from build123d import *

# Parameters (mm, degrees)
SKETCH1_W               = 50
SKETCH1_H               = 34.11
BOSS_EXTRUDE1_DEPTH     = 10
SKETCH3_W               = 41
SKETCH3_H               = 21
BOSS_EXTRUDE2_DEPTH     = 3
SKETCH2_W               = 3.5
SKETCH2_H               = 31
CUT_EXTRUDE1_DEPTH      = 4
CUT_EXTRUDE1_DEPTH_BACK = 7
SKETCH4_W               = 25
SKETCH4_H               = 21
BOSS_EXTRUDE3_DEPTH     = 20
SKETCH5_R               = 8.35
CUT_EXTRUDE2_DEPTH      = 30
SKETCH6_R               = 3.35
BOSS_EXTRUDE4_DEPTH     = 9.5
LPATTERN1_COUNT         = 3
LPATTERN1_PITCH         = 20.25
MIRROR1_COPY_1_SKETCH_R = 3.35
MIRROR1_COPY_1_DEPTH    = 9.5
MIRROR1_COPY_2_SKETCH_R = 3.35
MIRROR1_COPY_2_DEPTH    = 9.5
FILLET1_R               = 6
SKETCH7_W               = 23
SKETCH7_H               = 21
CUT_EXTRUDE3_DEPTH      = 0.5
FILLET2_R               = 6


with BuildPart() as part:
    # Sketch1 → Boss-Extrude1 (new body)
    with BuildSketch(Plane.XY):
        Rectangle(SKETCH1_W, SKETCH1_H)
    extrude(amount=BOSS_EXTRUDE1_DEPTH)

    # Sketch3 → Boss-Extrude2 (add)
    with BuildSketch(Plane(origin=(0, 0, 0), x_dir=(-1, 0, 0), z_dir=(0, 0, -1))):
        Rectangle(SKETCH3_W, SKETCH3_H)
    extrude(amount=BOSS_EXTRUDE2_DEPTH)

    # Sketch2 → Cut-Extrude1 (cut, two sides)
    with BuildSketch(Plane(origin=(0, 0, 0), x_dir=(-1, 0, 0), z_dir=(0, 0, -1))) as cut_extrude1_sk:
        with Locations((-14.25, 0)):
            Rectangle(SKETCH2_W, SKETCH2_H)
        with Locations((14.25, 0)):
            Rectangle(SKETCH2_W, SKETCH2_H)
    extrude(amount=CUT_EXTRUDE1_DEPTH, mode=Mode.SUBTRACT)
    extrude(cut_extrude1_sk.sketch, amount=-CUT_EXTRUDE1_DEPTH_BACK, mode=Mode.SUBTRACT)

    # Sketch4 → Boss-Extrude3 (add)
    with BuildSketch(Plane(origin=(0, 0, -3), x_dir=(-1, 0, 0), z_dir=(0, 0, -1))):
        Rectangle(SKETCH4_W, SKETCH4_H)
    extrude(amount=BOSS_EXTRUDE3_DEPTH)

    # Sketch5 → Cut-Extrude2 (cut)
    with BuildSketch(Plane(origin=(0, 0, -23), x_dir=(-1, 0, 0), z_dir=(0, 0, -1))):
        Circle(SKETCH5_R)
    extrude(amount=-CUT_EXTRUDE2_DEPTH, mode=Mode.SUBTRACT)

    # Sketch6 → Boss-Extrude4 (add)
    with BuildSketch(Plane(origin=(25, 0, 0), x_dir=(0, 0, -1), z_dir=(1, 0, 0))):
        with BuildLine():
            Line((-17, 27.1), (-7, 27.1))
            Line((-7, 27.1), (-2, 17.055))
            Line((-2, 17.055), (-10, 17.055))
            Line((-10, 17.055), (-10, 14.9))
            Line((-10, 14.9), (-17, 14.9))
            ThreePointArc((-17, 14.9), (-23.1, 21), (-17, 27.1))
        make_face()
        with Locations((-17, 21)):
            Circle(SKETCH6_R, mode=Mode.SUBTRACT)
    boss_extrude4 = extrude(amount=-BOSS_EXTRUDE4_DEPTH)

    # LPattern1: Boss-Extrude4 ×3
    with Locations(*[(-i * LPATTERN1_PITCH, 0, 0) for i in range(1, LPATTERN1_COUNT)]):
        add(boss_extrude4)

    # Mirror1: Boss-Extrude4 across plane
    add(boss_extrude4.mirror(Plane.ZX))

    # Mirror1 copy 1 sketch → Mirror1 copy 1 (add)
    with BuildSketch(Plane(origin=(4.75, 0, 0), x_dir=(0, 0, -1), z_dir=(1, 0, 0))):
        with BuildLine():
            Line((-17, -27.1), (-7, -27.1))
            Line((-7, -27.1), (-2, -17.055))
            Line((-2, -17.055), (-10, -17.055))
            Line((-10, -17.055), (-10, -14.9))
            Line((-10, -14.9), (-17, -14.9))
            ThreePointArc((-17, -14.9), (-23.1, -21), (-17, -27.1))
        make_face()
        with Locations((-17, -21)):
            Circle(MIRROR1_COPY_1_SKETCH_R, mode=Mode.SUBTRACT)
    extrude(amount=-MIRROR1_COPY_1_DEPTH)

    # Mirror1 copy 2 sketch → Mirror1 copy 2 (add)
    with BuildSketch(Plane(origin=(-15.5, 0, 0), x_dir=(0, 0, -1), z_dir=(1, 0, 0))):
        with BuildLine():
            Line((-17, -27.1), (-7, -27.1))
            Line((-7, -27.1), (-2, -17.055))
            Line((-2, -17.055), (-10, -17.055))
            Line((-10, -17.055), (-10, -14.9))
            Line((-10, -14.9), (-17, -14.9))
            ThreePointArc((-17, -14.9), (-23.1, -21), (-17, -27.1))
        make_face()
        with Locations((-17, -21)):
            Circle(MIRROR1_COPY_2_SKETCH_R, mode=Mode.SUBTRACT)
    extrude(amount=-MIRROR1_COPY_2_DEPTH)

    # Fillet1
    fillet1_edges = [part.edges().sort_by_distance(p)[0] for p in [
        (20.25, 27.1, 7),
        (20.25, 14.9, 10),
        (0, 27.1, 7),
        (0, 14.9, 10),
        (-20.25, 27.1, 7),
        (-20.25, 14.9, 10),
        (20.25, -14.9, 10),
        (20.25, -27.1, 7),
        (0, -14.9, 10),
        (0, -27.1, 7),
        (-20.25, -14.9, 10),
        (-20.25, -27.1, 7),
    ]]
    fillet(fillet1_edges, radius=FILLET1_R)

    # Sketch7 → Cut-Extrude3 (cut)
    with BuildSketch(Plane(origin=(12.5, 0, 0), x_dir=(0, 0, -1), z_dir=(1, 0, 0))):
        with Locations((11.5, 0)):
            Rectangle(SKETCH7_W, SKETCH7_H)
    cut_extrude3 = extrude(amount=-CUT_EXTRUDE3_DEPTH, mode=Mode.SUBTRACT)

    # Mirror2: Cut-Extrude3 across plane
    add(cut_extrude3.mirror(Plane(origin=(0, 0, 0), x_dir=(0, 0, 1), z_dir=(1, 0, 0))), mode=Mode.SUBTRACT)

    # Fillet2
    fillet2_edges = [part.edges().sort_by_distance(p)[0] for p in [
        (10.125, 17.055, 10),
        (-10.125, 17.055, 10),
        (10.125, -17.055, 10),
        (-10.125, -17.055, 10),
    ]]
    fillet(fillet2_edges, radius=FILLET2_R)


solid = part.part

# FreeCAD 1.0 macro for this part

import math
import FreeCAD as App
import Part
import Sketcher


def edges_at(feature, points):
    """Names of the edges that pass closest to the given points."""
    edges = feature.Shape.Edges
    near = lambda p: min(range(len(edges)), key=lambda i: edges[i].distToShape(Part.Vertex(*p))[0])
    return sorted({f"Edge{near(p) + 1}" for p in points})

doc = App.newDocument("Part")
body = doc.addObject("PartDesign::Body", "Body")

# Sketch on XY plane
sketch1 = doc.addObject("Sketcher::SketchObject", "Sketch")
body.addObject(sketch1)
sketch1.AttachmentSupport = (doc.XY_Plane, [""])
sketch1.MapMode = "FlatFace"
sketch1.addGeometry([
    Part.LineSegment(App.Vector(-25, 17.055, 0), App.Vector(-25, -17.055, 0)),
    Part.LineSegment(App.Vector(-25, -17.055, 0), App.Vector(25, -17.055, 0)),
    Part.LineSegment(App.Vector(25, -17.055, 0), App.Vector(25, 17.055, 0)),
    Part.LineSegment(App.Vector(25, 17.055, 0), App.Vector(-25, 17.055, 0)),
], False)
sketch1.addConstraint([
    Sketcher.Constraint("Coincident", 0, 2, 1, 1),
    Sketcher.Constraint("Coincident", 1, 2, 2, 1),
    Sketcher.Constraint("Coincident", 2, 2, 3, 1),
    Sketcher.Constraint("Coincident", 3, 2, 0, 1),
    Sketcher.Constraint("Vertical", 0),
    Sketcher.Constraint("Horizontal", 1),
    Sketcher.Constraint("Vertical", 2),
    Sketcher.Constraint("Horizontal", 3),
    Sketcher.Constraint("Symmetric", 0, 2, 2, 2, -1, 1),
    Sketcher.Constraint("DistanceX", 1, 1, 1, 2, 50.0),
    Sketcher.Constraint("DistanceY", 0, 2, 0, 1, 34.11),
])
pad1 = doc.addObject("PartDesign::Pad", "Pad")
body.addObject(pad1)
pad1.Profile = sketch1
pad1.Length = 10

# Sketch on XY plane
sketch2 = doc.addObject("Sketcher::SketchObject", "Sketch001")
body.addObject(sketch2)
sketch2.AttachmentSupport = (doc.XY_Plane, [""])
sketch2.MapMode = "FlatFace"
sketch2.addGeometry([
    Part.LineSegment(App.Vector(20.5, 10.5, 0), App.Vector(20.5, -10.5, 0)),
    Part.LineSegment(App.Vector(20.5, -10.5, 0), App.Vector(-20.5, -10.5, 0)),
    Part.LineSegment(App.Vector(-20.5, -10.5, 0), App.Vector(-20.5, 10.5, 0)),
    Part.LineSegment(App.Vector(-20.5, 10.5, 0), App.Vector(20.5, 10.5, 0)),
], False)
sketch2.addConstraint([
    Sketcher.Constraint("Coincident", 0, 2, 1, 1),
    Sketcher.Constraint("Coincident", 1, 2, 2, 1),
    Sketcher.Constraint("Coincident", 2, 2, 3, 1),
    Sketcher.Constraint("Coincident", 3, 2, 0, 1),
    Sketcher.Constraint("Vertical", 0),
    Sketcher.Constraint("Horizontal", 1),
    Sketcher.Constraint("Vertical", 2),
    Sketcher.Constraint("Horizontal", 3),
    Sketcher.Constraint("Symmetric", 0, 2, 2, 2, -1, 1),
    Sketcher.Constraint("DistanceX", 1, 2, 1, 1, 41.0),
    Sketcher.Constraint("DistanceY", 0, 2, 0, 1, 21.0),
])
pad2 = doc.addObject("PartDesign::Pad", "Pad001")
body.addObject(pad2)
pad2.Profile = sketch2
pad2.Length = 3
pad2.Reversed = True

# Sketch on XY plane
sketch3 = doc.addObject("Sketcher::SketchObject", "Sketch002")
body.addObject(sketch3)
sketch3.AttachmentSupport = (doc.XY_Plane, [""])
sketch3.MapMode = "FlatFace"
sketch3.addGeometry([
    Part.LineSegment(App.Vector(16, 15.5, 0), App.Vector(16, -15.5, 0)),  # 0
    Part.LineSegment(App.Vector(16, -15.5, 0), App.Vector(12.5, -15.5, 0)),  # 1
    Part.LineSegment(App.Vector(12.5, -15.5, 0), App.Vector(12.5, 15.5, 0)),  # 2
    Part.LineSegment(App.Vector(12.5, 15.5, 0), App.Vector(16, 15.5, 0)),  # 3
    Part.LineSegment(App.Vector(-12.5, 15.5, 0), App.Vector(-12.5, -15.5, 0)),  # 4
    Part.LineSegment(App.Vector(-12.5, -15.5, 0), App.Vector(-16, -15.5, 0)),  # 5
    Part.LineSegment(App.Vector(-16, -15.5, 0), App.Vector(-16, 15.5, 0)),  # 6
    Part.LineSegment(App.Vector(-16, 15.5, 0), App.Vector(-12.5, 15.5, 0)),  # 7
], False)
sketch3.addConstraint([
    Sketcher.Constraint("Coincident", 0, 2, 1, 1),
    Sketcher.Constraint("Coincident", 1, 2, 2, 1),
    Sketcher.Constraint("Coincident", 2, 2, 3, 1),
    Sketcher.Constraint("Coincident", 3, 2, 0, 1),
    Sketcher.Constraint("Coincident", 4, 2, 5, 1),
    Sketcher.Constraint("Coincident", 5, 2, 6, 1),
    Sketcher.Constraint("Coincident", 6, 2, 7, 1),
    Sketcher.Constraint("Coincident", 7, 2, 4, 1),
    Sketcher.Constraint("Vertical", 0),
    Sketcher.Constraint("Horizontal", 1),
    Sketcher.Constraint("Vertical", 2),
    Sketcher.Constraint("Horizontal", 3),
    Sketcher.Constraint("Vertical", 4),
    Sketcher.Constraint("Horizontal", 5),
    Sketcher.Constraint("Vertical", 6),
    Sketcher.Constraint("Horizontal", 7),
    Sketcher.Constraint("Symmetric", 2, 2, 4, 2, -1, 1),
    Sketcher.Constraint("Symmetric", 0, 2, 6, 2, -1, 1),
    Sketcher.Constraint("Horizontal", 1, 2, 4, 2),
    Sketcher.Constraint("DistanceY", 0, 2, 0, 1, 31.0),
    Sketcher.Constraint("DistanceX", 1, 2, 1, 1, 3.5),
    Sketcher.Constraint("DistanceX", -1, 1, 0, 2, 16.0),
])
pocket1 = doc.addObject("PartDesign::Pocket", "Pocket")
body.addObject(pocket1)
pocket1.Profile = sketch3
pocket1.Type = "TwoLengths"
pocket1.Length = 4
pocket1.Length2 = 7

# Sketch on XY plane
sketch4 = doc.addObject("Sketcher::SketchObject", "Sketch003")
body.addObject(sketch4)
sketch4.AttachmentSupport = (doc.XY_Plane, [""])
sketch4.MapMode = "FlatFace"
sketch4.AttachmentOffset = App.Placement(App.Vector(0, 0, -3), App.Rotation())
sketch4.addGeometry([
    Part.LineSegment(App.Vector(12.5, 10.5, 0), App.Vector(12.5, -10.5, 0)),
    Part.LineSegment(App.Vector(12.5, -10.5, 0), App.Vector(-12.5, -10.5, 0)),
    Part.LineSegment(App.Vector(-12.5, -10.5, 0), App.Vector(-12.5, 10.5, 0)),
    Part.LineSegment(App.Vector(-12.5, 10.5, 0), App.Vector(12.5, 10.5, 0)),
], False)
sketch4.addConstraint([
    Sketcher.Constraint("Coincident", 0, 2, 1, 1),
    Sketcher.Constraint("Coincident", 1, 2, 2, 1),
    Sketcher.Constraint("Coincident", 2, 2, 3, 1),
    Sketcher.Constraint("Coincident", 3, 2, 0, 1),
    Sketcher.Constraint("Vertical", 0),
    Sketcher.Constraint("Horizontal", 1),
    Sketcher.Constraint("Vertical", 2),
    Sketcher.Constraint("Horizontal", 3),
    Sketcher.Constraint("Symmetric", 0, 2, 2, 2, -1, 1),
    Sketcher.Constraint("DistanceX", 1, 2, 1, 1, 25.0),
    Sketcher.Constraint("DistanceY", 0, 2, 0, 1, 21.0),
])
pad3 = doc.addObject("PartDesign::Pad", "Pad002")
body.addObject(pad3)
pad3.Profile = sketch4
pad3.Length = 20
pad3.Reversed = True

# Sketch on XY plane
sketch5 = doc.addObject("Sketcher::SketchObject", "Sketch004")
body.addObject(sketch5)
sketch5.AttachmentSupport = (doc.XY_Plane, [""])
sketch5.MapMode = "FlatFace"
sketch5.AttachmentOffset = App.Placement(App.Vector(0, 0, -23), App.Rotation())
sketch5.addGeometry(Part.Circle(App.Vector(0, 0, 0), App.Vector(0, 0, 1), 8.35), False)
sketch5.addConstraint([
    Sketcher.Constraint("Coincident", 0, 3, -1, 1),
    Sketcher.Constraint("Diameter", 0, 16.7),
])
pocket2 = doc.addObject("PartDesign::Pocket", "Pocket001")
body.addObject(pocket2)
pocket2.Profile = sketch5
pocket2.Length = 30
pocket2.Reversed = True

# Sketch on YZ plane
sketch6 = doc.addObject("Sketcher::SketchObject", "Sketch005")
body.addObject(sketch6)
sketch6.AttachmentSupport = (doc.YZ_Plane, [""])
sketch6.MapMode = "FlatFace"
sketch6.AttachmentOffset = App.Placement(App.Vector(0, 0, 25), App.Rotation())
sketch6.addGeometry([
    Part.LineSegment(App.Vector(27.1, 7, 0), App.Vector(27.1, 17, 0)),  # 0
    Part.ArcOfCircle(Part.Circle(App.Vector(21, 17, 0), App.Vector(0, 0, 1), 6.1), math.radians(0), math.radians(180)),  # 1
    Part.LineSegment(App.Vector(14.9, 17, 0), App.Vector(14.9, 10, 0)),  # 2
    Part.LineSegment(App.Vector(14.9, 10, 0), App.Vector(17.055, 10, 0)),  # 3
    Part.LineSegment(App.Vector(17.055, 10, 0), App.Vector(17.055, 2, 0)),  # 4
    Part.LineSegment(App.Vector(17.055, 2, 0), App.Vector(27.1, 7, 0)),  # 5
    Part.Circle(App.Vector(21, 17, 0), App.Vector(0, 0, 1), 3.35),  # 6
], False)
sketch6.addConstraint([
    Sketcher.Constraint("Tangent", 0, 2, 1, 1),
    Sketcher.Constraint("Tangent", 1, 2, 2, 1),
    Sketcher.Constraint("Coincident", 2, 2, 3, 1),
    Sketcher.Constraint("Coincident", 3, 2, 4, 1),
    Sketcher.Constraint("Coincident", 4, 2, 5, 1),
    Sketcher.Constraint("Coincident", 5, 2, 0, 1),
    Sketcher.Constraint("Vertical", 0),
    Sketcher.Constraint("Vertical", 2),
    Sketcher.Constraint("Horizontal", 3),
    Sketcher.Constraint("Vertical", 4),
    Sketcher.Constraint("Coincident", 6, 3, 1, 3),
    Sketcher.Constraint("Diameter", 6, 6.7),
    Sketcher.Constraint("Radius", 1, 6.1),
    Sketcher.Constraint("DistanceY", 0, 1, 0, 2, 10.0),
    Sketcher.Constraint("DistanceY", 2, 2, 2, 1, 7.0),
    Sketcher.Constraint("DistanceY", 4, 2, 4, 1, 8.0),
    Sketcher.Constraint("DistanceX", -1, 1, 1, 3, 21.0),
    Sketcher.Constraint("DistanceY", -1, 1, 1, 3, 17.0),
    Sketcher.Constraint("DistanceX", 3, 1, 3, 2, 2.155),
])
pad4 = doc.addObject("PartDesign::Pad", "Pad003")
body.addObject(pad4)
pad4.Profile = sketch6
pad4.Length = 9.5
pad4.Reversed = True
doc.recompute()

linearpattern = doc.addObject("PartDesign::LinearPattern", "LinearPattern")
body.addObject(linearpattern)
linearpattern.Originals = [pad4]
linearpattern.Direction = (doc.X_Axis, [""])
linearpattern.Mode = "offset"
linearpattern.Offset = 20.25
linearpattern.Occurrences = 3
linearpattern.Reversed = True
body.Tip = linearpattern
doc.recompute()

mirrored = doc.addObject("PartDesign::Mirrored", "Mirrored")
body.addObject(mirrored)
mirrored.Originals = [pad4]
mirrored.MirrorPlane = (doc.XZ_Plane, [""])
body.Tip = mirrored

# Sketch on YZ plane
sketch7 = doc.addObject("Sketcher::SketchObject", "Sketch006")
body.addObject(sketch7)
sketch7.AttachmentSupport = (doc.YZ_Plane, [""])
sketch7.MapMode = "FlatFace"
sketch7.AttachmentOffset = App.Placement(App.Vector(0, 0, 4.75), App.Rotation())
sketch7.addGeometry([
    Part.LineSegment(App.Vector(-27.1, 17, 0), App.Vector(-27.1, 7, 0)),  # 0
    Part.LineSegment(App.Vector(-27.1, 7, 0), App.Vector(-17.055, 2, 0)),  # 1
    Part.LineSegment(App.Vector(-17.055, 2, 0), App.Vector(-17.055, 10, 0)),  # 2
    Part.LineSegment(App.Vector(-17.055, 10, 0), App.Vector(-14.9, 10, 0)),  # 3
    Part.LineSegment(App.Vector(-14.9, 10, 0), App.Vector(-14.9, 17, 0)),  # 4
    Part.ArcOfCircle(Part.Circle(App.Vector(-21, 17, 0), App.Vector(0, 0, 1), 6.1), math.radians(0), math.radians(180)),  # 5
    Part.Circle(App.Vector(-21, 17, 0), App.Vector(0, 0, 1), 3.35),  # 6
], False)
sketch7.addConstraint([
    Sketcher.Constraint("Coincident", 0, 2, 1, 1),
    Sketcher.Constraint("Coincident", 1, 2, 2, 1),
    Sketcher.Constraint("Coincident", 2, 2, 3, 1),
    Sketcher.Constraint("Coincident", 3, 2, 4, 1),
    Sketcher.Constraint("Tangent", 4, 2, 5, 1),
    Sketcher.Constraint("Tangent", 5, 2, 0, 1),
    Sketcher.Constraint("Vertical", 0),
    Sketcher.Constraint("Vertical", 2),
    Sketcher.Constraint("Horizontal", 3),
    Sketcher.Constraint("Vertical", 4),
    Sketcher.Constraint("Coincident", 6, 3, 5, 3),
    Sketcher.Constraint("Diameter", 6, 6.7),
    Sketcher.Constraint("Radius", 5, 6.1),
    Sketcher.Constraint("DistanceY", 0, 2, 0, 1, 10.0),
    Sketcher.Constraint("DistanceY", 2, 1, 2, 2, 8.0),
    Sketcher.Constraint("DistanceY", 4, 1, 4, 2, 7.0),
    Sketcher.Constraint("DistanceX", 5, 3, -1, 1, 21.0),
    Sketcher.Constraint("DistanceY", -1, 1, 5, 3, 17.0),
    Sketcher.Constraint("DistanceX", 3, 1, 3, 2, 2.155),
])
pad5 = doc.addObject("PartDesign::Pad", "Pad004")
body.addObject(pad5)
pad5.Profile = sketch7
pad5.Length = 9.5
pad5.Reversed = True

# Sketch on YZ plane
sketch8 = doc.addObject("Sketcher::SketchObject", "Sketch007")
body.addObject(sketch8)
sketch8.AttachmentSupport = (doc.YZ_Plane, [""])
sketch8.MapMode = "FlatFace"
sketch8.AttachmentOffset = App.Placement(App.Vector(0, 0, -15.5), App.Rotation())
sketch8.addGeometry([
    Part.LineSegment(App.Vector(-27.1, 17, 0), App.Vector(-27.1, 7, 0)),  # 0
    Part.LineSegment(App.Vector(-27.1, 7, 0), App.Vector(-17.055, 2, 0)),  # 1
    Part.LineSegment(App.Vector(-17.055, 2, 0), App.Vector(-17.055, 10, 0)),  # 2
    Part.LineSegment(App.Vector(-17.055, 10, 0), App.Vector(-14.9, 10, 0)),  # 3
    Part.LineSegment(App.Vector(-14.9, 10, 0), App.Vector(-14.9, 17, 0)),  # 4
    Part.ArcOfCircle(Part.Circle(App.Vector(-21, 17, 0), App.Vector(0, 0, 1), 6.1), math.radians(0), math.radians(180)),  # 5
    Part.Circle(App.Vector(-21, 17, 0), App.Vector(0, 0, 1), 3.35),  # 6
], False)
sketch8.addConstraint([
    Sketcher.Constraint("Coincident", 0, 2, 1, 1),
    Sketcher.Constraint("Coincident", 1, 2, 2, 1),
    Sketcher.Constraint("Coincident", 2, 2, 3, 1),
    Sketcher.Constraint("Coincident", 3, 2, 4, 1),
    Sketcher.Constraint("Tangent", 4, 2, 5, 1),
    Sketcher.Constraint("Tangent", 5, 2, 0, 1),
    Sketcher.Constraint("Vertical", 0),
    Sketcher.Constraint("Vertical", 2),
    Sketcher.Constraint("Horizontal", 3),
    Sketcher.Constraint("Vertical", 4),
    Sketcher.Constraint("Coincident", 6, 3, 5, 3),
    Sketcher.Constraint("Diameter", 6, 6.7),
    Sketcher.Constraint("Radius", 5, 6.1),
    Sketcher.Constraint("DistanceY", 0, 2, 0, 1, 10.0),
    Sketcher.Constraint("DistanceY", 2, 1, 2, 2, 8.0),
    Sketcher.Constraint("DistanceY", 4, 1, 4, 2, 7.0),
    Sketcher.Constraint("DistanceX", 5, 3, -1, 1, 21.0),
    Sketcher.Constraint("DistanceY", -1, 1, 5, 3, 17.0),
    Sketcher.Constraint("DistanceX", 3, 1, 3, 2, 2.155),
])
pad6 = doc.addObject("PartDesign::Pad", "Pad005")
body.addObject(pad6)
pad6.Profile = sketch8
pad6.Length = 9.5
pad6.Reversed = True
doc.recompute()

fillet = doc.addObject("PartDesign::Fillet", "Fillet")
body.addObject(fillet)
fillet.Base = (pad6, edges_at(pad6, [
    (20.25, 27.1, 7),
    (20.25, 14.9, 10),
    (0, 27.1, 7),
    (0, 14.9, 10),
    (-20.25, 27.1, 7),
    (-20.25, 14.9, 10),
    (20.25, -14.9, 10),
    (20.25, -27.1, 7),
    (0, -14.9, 10),
    (0, -27.1, 7),
    (-20.25, -14.9, 10),
    (-20.25, -27.1, 7),
]))
fillet.Radius = 6

# Sketch on YZ plane
sketch9 = doc.addObject("Sketcher::SketchObject", "Sketch008")
body.addObject(sketch9)
sketch9.AttachmentSupport = (doc.YZ_Plane, [""])
sketch9.MapMode = "FlatFace"
sketch9.AttachmentOffset = App.Placement(App.Vector(0, 0, 12.5), App.Rotation())
sketch9.addGeometry([
    Part.LineSegment(App.Vector(10.5, 0, 0), App.Vector(-10.5, 0, 0)),
    Part.LineSegment(App.Vector(-10.5, 0, 0), App.Vector(-10.5, -23, 0)),
    Part.LineSegment(App.Vector(-10.5, -23, 0), App.Vector(10.5, -23, 0)),
    Part.LineSegment(App.Vector(10.5, -23, 0), App.Vector(10.5, 0, 0)),
], False)
sketch9.addConstraint([
    Sketcher.Constraint("Coincident", 0, 2, 1, 1),
    Sketcher.Constraint("Coincident", 1, 2, 2, 1),
    Sketcher.Constraint("Coincident", 2, 2, 3, 1),
    Sketcher.Constraint("Coincident", 3, 2, 0, 1),
    Sketcher.Constraint("Horizontal", 0),
    Sketcher.Constraint("Vertical", 1),
    Sketcher.Constraint("Horizontal", 2),
    Sketcher.Constraint("Vertical", 3),
    Sketcher.Constraint("Symmetric", 0, 2, 3, 2, -1, 1),
    Sketcher.Constraint("DistanceX", 0, 2, 0, 1, 21.0),
    Sketcher.Constraint("DistanceY", 1, 2, 1, 1, 23.0),
])
pocket3 = doc.addObject("PartDesign::Pocket", "Pocket002")
body.addObject(pocket3)
pocket3.Profile = sketch9
pocket3.Length = 0.5
doc.recompute()

mirrored2 = doc.addObject("PartDesign::Mirrored", "Mirrored001")
body.addObject(mirrored2)
mirrored2.Originals = [pocket3]
mirrored2.MirrorPlane = (doc.YZ_Plane, [""])
body.Tip = mirrored2
doc.recompute()

fillet2 = doc.addObject("PartDesign::Fillet", "Fillet001")
body.addObject(fillet2)
fillet2.Base = (mirrored2, edges_at(mirrored2, [
    (10.125, 17.055, 10),
    (-10.125, 17.055, 10),
    (10.125, -17.055, 10),
    (-10.125, -17.055, 10),
]))
fillet2.Radius = 6

doc.recompute()
